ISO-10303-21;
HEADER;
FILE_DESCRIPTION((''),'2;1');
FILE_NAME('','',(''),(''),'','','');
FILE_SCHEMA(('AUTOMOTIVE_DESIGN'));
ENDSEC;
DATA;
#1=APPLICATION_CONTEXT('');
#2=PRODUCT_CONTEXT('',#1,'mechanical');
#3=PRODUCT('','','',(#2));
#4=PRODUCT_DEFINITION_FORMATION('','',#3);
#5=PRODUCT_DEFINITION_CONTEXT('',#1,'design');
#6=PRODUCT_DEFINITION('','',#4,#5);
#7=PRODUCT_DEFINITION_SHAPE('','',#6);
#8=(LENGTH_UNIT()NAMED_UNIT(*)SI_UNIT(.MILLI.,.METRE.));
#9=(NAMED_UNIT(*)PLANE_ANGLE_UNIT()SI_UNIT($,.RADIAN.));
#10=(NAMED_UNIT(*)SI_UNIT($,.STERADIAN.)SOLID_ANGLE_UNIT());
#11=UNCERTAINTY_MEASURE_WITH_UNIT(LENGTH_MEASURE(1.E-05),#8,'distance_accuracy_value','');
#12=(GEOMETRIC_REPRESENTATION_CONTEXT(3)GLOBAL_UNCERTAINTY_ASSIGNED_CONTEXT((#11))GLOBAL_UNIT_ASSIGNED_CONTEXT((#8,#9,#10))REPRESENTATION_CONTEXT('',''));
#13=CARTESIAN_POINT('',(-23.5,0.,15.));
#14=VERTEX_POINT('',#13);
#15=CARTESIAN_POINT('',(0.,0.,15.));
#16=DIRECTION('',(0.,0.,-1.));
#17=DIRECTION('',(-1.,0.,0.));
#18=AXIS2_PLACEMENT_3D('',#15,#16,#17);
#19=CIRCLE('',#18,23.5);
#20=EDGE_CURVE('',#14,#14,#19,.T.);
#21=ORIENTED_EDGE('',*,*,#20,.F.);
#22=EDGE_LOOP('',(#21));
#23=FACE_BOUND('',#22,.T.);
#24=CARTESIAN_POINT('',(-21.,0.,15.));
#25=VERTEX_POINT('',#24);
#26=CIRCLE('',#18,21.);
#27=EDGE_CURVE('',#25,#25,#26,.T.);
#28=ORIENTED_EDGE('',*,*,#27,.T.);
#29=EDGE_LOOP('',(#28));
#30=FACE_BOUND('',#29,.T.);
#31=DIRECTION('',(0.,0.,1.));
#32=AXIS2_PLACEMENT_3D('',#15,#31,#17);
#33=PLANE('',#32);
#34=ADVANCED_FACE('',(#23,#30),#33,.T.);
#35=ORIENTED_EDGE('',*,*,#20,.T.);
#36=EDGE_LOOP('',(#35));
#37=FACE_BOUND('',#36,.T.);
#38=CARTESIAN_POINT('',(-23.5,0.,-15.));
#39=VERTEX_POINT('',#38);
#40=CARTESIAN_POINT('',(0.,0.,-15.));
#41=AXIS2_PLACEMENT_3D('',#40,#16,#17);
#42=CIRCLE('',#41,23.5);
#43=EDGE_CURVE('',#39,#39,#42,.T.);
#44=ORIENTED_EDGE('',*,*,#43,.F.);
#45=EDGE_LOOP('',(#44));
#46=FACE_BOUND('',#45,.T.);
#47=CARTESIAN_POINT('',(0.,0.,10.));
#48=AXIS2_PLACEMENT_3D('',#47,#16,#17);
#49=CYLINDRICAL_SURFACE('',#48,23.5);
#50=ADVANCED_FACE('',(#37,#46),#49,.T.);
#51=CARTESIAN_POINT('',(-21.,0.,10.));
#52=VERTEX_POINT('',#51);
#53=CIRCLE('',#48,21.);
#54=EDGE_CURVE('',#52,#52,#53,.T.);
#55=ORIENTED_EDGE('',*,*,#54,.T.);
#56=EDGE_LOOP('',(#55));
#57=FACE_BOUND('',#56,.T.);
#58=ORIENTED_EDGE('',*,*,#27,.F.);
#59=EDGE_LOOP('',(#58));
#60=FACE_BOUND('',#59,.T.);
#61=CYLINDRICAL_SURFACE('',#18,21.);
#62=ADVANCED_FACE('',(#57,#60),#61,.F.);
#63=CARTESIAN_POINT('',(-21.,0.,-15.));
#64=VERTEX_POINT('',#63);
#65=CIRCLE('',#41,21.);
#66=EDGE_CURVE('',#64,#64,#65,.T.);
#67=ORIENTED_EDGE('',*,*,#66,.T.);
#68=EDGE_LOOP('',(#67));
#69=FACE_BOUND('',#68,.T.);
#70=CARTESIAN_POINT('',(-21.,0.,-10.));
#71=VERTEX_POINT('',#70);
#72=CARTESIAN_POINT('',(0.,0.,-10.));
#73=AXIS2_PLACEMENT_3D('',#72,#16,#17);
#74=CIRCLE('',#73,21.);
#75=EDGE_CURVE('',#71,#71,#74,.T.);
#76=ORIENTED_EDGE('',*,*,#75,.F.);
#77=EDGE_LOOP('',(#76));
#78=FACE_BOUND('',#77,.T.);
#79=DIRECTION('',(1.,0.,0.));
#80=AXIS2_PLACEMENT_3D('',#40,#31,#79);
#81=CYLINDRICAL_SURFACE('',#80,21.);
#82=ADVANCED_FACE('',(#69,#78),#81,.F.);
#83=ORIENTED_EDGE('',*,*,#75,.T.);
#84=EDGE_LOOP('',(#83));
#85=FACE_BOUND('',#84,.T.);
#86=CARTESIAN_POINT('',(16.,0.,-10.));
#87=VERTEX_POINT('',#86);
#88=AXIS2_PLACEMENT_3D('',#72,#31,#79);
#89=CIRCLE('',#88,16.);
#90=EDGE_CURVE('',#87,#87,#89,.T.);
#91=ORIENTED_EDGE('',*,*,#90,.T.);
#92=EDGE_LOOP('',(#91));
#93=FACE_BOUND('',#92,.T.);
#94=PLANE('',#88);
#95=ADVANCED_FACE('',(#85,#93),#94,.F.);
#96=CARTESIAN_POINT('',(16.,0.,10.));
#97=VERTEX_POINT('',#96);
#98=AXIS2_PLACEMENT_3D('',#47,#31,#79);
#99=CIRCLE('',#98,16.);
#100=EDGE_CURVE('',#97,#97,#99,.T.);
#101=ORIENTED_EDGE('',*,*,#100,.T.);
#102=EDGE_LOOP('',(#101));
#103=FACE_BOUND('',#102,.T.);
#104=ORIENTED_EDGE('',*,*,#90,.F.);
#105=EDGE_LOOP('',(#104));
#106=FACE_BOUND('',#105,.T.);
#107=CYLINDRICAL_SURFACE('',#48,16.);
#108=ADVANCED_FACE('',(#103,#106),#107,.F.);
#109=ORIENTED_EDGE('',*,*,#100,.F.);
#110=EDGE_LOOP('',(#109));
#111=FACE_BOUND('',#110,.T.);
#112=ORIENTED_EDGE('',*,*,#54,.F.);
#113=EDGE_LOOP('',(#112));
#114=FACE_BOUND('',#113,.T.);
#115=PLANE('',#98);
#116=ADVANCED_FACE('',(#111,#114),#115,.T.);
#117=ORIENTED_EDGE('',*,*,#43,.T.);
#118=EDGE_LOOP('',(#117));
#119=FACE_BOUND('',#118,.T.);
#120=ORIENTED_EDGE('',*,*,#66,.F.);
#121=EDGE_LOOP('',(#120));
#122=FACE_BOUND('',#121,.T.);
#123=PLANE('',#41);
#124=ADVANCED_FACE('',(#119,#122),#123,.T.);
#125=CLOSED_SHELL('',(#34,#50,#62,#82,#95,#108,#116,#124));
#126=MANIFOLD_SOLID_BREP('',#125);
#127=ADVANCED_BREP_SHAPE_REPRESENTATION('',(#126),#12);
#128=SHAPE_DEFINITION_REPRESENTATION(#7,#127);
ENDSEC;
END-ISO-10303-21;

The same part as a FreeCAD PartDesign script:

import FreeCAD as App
import Part
import Sketcher

V = App.Vector
Q = App.Units.Quantity

doc = App.newDocument("Part")
body = doc.addObject("PartDesign::Body", "Body")

# Sketch on XY plane
sketch1 = doc.addObject("Sketcher::SketchObject", "Sketch")
body.addObject(sketch1)
sketch1.AttachmentSupport = (doc.XY_Plane, [""])
sketch1.MapMode = "FlatFace"
sketch1.addGeometry(Part.Circle(V(0, 0, 0), V(0, 0, 1), 24), False)
sketch1.addGeometry(Part.Circle(V(0, 0, 0), V(0, 0, 1), 16), False)
sketch1.addConstraint(Sketcher.Constraint("Coincident", 0, 3, -1, 1))
sketch1.addConstraint(Sketcher.Constraint("Coincident", 1, 3, -1, 1))
sketch1.addConstraint(Sketcher.Constraint("Diameter", 0, Q("47 mm")))
sketch1.addConstraint(Sketcher.Constraint("Diameter", 1, Q("32 mm")))
pad1 = doc.addObject("PartDesign::Pad", "Pad")
body.addObject(pad1)
pad1.Profile = sketch1
pad1.Length = 20
pad1.Midplane = True

# Sketch on XY plane
sketch2 = doc.addObject("Sketcher::SketchObject", "Sketch001")
body.addObject(sketch2)
sketch2.AttachmentSupport = (doc.XY_Plane, [""])
sketch2.MapMode = "FlatFace"
sketch2.AttachmentOffset = App.Placement(V(0, 0, -10), App.Rotation())
sketch2.addGeometry(Part.Circle(V(0, 0, 0), V(0, 0, 1), 24), False)
sketch2.addGeometry(Part.Circle(V(0, 0, 0), V(0, 0, 1), 21), False)
sketch2.addConstraint(Sketcher.Constraint("Coincident", 0, 3, -1, 1))
sketch2.addConstraint(Sketcher.Constraint("Coincident", 1, 3, -1, 1))
sketch2.addConstraint(Sketcher.Constraint("Diameter", 0, Q("47 mm")))
sketch2.addConstraint(Sketcher.Constraint("Diameter", 1, Q("42 mm")))
pad2 = doc.addObject("PartDesign::Pad", "Pad001")
body.addObject(pad2)
pad2.Profile = sketch2
pad2.Length = 5
pad2.Reversed = True
doc.recompute()

mirrored = doc.addObject("PartDesign::Mirrored", "Mirrored")
body.addObject(mirrored)
mirrored.Originals = [pad2]
mirrored.MirrorPlane = (doc.XY_Plane, [""])
body.Tip = mirrored

doc.recompute()
